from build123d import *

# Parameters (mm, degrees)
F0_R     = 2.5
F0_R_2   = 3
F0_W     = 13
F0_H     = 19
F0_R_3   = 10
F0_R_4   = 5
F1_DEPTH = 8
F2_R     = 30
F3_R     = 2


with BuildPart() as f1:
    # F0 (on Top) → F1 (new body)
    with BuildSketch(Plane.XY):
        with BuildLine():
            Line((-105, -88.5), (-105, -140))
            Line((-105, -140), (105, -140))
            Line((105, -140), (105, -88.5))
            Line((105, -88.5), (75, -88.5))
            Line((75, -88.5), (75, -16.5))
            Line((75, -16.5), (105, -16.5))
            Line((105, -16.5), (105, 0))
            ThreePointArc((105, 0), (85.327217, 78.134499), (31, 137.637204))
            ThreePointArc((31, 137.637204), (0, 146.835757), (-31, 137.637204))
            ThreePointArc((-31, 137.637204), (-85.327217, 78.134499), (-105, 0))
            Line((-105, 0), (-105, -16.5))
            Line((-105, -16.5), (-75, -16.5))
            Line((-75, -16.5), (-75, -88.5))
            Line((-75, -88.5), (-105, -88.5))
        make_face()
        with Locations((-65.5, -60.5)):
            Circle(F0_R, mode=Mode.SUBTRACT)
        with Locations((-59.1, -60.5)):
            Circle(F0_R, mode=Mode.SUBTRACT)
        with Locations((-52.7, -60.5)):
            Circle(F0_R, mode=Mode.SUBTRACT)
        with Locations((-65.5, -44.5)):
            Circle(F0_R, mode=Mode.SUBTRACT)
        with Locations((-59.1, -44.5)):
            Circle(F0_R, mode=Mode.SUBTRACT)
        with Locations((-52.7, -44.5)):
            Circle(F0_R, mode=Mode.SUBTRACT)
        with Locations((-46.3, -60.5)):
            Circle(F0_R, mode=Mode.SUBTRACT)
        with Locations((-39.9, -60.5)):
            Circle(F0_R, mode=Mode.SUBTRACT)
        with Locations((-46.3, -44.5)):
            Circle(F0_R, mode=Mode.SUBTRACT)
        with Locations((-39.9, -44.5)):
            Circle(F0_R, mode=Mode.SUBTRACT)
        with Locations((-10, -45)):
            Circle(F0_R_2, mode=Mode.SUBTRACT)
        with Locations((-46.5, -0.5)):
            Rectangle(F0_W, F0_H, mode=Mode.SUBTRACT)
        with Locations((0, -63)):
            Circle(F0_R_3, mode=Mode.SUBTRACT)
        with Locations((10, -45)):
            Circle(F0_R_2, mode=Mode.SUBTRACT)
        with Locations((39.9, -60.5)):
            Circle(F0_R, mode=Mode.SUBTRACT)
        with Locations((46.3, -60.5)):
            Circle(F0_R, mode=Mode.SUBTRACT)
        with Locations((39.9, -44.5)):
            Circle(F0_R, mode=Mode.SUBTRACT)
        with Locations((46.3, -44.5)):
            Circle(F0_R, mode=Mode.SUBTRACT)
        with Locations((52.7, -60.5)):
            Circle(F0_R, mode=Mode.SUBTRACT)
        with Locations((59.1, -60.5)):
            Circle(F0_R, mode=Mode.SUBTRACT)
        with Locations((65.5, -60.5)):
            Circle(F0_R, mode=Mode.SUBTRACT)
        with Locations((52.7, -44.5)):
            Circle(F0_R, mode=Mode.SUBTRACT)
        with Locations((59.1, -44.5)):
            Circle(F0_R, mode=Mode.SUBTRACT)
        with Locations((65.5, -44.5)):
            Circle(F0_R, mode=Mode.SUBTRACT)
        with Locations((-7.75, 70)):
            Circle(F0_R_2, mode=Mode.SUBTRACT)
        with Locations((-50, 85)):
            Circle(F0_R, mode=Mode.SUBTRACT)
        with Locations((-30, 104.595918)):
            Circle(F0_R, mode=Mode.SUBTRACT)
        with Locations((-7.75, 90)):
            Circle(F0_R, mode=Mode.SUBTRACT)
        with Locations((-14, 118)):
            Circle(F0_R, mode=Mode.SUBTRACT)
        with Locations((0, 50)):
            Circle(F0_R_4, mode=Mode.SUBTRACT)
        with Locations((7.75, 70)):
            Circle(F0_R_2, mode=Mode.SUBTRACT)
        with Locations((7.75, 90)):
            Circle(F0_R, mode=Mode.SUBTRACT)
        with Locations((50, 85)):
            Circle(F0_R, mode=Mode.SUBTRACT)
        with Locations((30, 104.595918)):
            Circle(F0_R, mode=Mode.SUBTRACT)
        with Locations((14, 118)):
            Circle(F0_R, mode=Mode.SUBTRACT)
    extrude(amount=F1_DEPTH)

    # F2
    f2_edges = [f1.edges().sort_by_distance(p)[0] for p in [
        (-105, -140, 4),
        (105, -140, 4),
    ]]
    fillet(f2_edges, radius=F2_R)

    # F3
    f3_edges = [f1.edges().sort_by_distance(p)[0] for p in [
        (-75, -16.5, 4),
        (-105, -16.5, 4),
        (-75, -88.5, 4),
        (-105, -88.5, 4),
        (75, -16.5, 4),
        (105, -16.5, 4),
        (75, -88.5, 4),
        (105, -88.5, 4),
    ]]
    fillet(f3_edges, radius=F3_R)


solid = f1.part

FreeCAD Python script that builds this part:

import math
import FreeCAD as App
import Part
import Sketcher


def edges_at(feature, points):
    """Names of the edges that pass closest to the given points."""
    edges = feature.Shape.Edges
    near = lambda p: min(range(len(edges)), key=lambda i: edges[i].distToShape(Part.Vertex(*p))[0])
    return sorted({f"Edge{near(p) + 1}" for p in points})


def add_polygon(sketch, points):
    """Adds a closed chain of lines whose ends are joined by coincident constraints."""
    first, n = sketch.GeometryCount, len(points)
    for a, b in zip(points, points[1:] + points[:1]):
        sketch.addGeometry(Part.LineSegment(App.Vector(*a, 0), App.Vector(*b, 0)), False)
    for i in range(n):
        sketch.addConstraint(Sketcher.Constraint("Coincident", first + i, 2, first + (i + 1) % n, 1))

doc = App.newDocument("Part")
body = doc.addObject("PartDesign::Body", "Body")

# Sketch on XY plane
sketch1 = doc.addObject("Sketcher::SketchObject", "Sketch")
body.addObject(sketch1)
sketch1.AttachmentSupport = (doc.XY_Plane, [""])
sketch1.MapMode = "FlatFace"
sketch1.addGeometry(Part.LineSegment(App.Vector(-105, -88.5, 0), App.Vector(-105, -140, 0)), False)  # 0
sketch1.addGeometry(Part.LineSegment(App.Vector(-105, -140, 0), App.Vector(105, -140, 0)), False)  # 1
sketch1.addGeometry(Part.LineSegment(App.Vector(105, -140, 0), App.Vector(105, -88.5, 0)), False)  # 2
sketch1.addGeometry(Part.LineSegment(App.Vector(105, -88.5, 0), App.Vector(75, -88.5, 0)), False)  # 3
sketch1.addGeometry(Part.LineSegment(App.Vector(75, -88.5, 0), App.Vector(75, -16.5, 0)), False)  # 4
sketch1.addGeometry(Part.LineSegment(App.Vector(75, -16.5, 0), App.Vector(105, -16.5, 0)), False)  # 5
sketch1.addGeometry(Part.LineSegment(App.Vector(105, -16.5, 0), App.Vector(105, 0, 0)), False)  # 6
sketch1.addGeometry(Part.ArcOfCircle(Part.Circle(App.Vector(-60, 0, 0), App.Vector(0, 0, 1), 165), math.radians(0), math.radians(57)), False)  # 7
sketch1.addGeometry(Part.ArcOfCircle(Part.Circle(App.Vector(0, 90, 0), App.Vector(0, 0, 1), 56.8), math.radians(57), math.radians(123)), False)  # 8
sketch1.addGeometry(Part.ArcOfCircle(Part.Circle(App.Vector(60, 0, 0), App.Vector(0, 0, 1), 165), math.radians(123), math.radians(180)), False)  # 9
sketch1.addGeometry(Part.LineSegment(App.Vector(-105, 0, 0), App.Vector(-105, -16.5, 0)), False)  # 10
sketch1.addGeometry(Part.LineSegment(App.Vector(-105, -16.5, 0), App.Vector(-75, -16.5, 0)), False)  # 11
sketch1.addGeometry(Part.LineSegment(App.Vector(-75, -16.5, 0), App.Vector(-75, -88.5, 0)), False)  # 12
sketch1.addGeometry(Part.LineSegment(App.Vector(-75, -88.5, 0), App.Vector(-105, -88.5, 0)), False)  # 13
sketch1.addGeometry(Part.Circle(App.Vector(-65.5, -60.5, 0), App.Vector(0, 0, 1), 2.5), False)  # 14
sketch1.addGeometry(Part.Circle(App.Vector(-59.1, -60.5, 0), App.Vector(0, 0, 1), 2.5), False)  # 15
sketch1.addGeometry(Part.Circle(App.Vector(-52.7, -60.5, 0), App.Vector(0, 0, 1), 2.5), False)  # 16
sketch1.addGeometry(Part.Circle(App.Vector(-46.3, -60.5, 0), App.Vector(0, 0, 1), 2.5), False)  # 17
sketch1.addGeometry(Part.Circle(App.Vector(-39.9, -60.5, 0), App.Vector(0, 0, 1), 2.5), False)  # 18
sketch1.addGeometry(Part.Circle(App.Vector(-65.5, -44.5, 0), App.Vector(0, 0, 1), 2.5), False)  # 19
sketch1.addGeometry(Part.Circle(App.Vector(-59.1, -44.5, 0), App.Vector(0, 0, 1), 2.5), False)  # 20
sketch1.addGeometry(Part.Circle(App.Vector(-52.7, -44.5, 0), App.Vector(0, 0, 1), 2.5), False)  # 21
sketch1.addGeometry(Part.Circle(App.Vector(-46.3, -44.5, 0), App.Vector(0, 0, 1), 2.5), False)  # 22
sketch1.addGeometry(Part.Circle(App.Vector(-39.9, -44.5, 0), App.Vector(0, 0, 1), 2.5), False)  # 23
sketch1.addGeometry(Part.Circle(App.Vector(-10, -45, 0), App.Vector(0, 0, 1), 3), False)  # 24
add_polygon(sketch1, [(-40, -10), (-53, -10), (-53, 9), (-40, 9)])  # lines 25-28
sketch1.addGeometry(Part.Circle(App.Vector(0, -63, 0), App.Vector(0, 0, 1), 10), False)  # 29
sketch1.addGeometry(Part.Circle(App.Vector(10, -45, 0), App.Vector(0, 0, 1), 3), False)  # 30
sketch1.addGeometry(Part.Circle(App.Vector(39.9, -60.5, 0), App.Vector(0, 0, 1), 2.5), False)  # 31
sketch1.addGeometry(Part.Circle(App.Vector(46.3, -60.5, 0), App.Vector(0, 0, 1), 2.5), False)  # 32
sketch1.addGeometry(Part.Circle(App.Vector(52.7, -60.5, 0), App.Vector(0, 0, 1), 2.5), False)  # 33
sketch1.addGeometry(Part.Circle(App.Vector(59.1, -60.5, 0), App.Vector(0, 0, 1), 2.5), False)  # 34
sketch1.addGeometry(Part.Circle(App.Vector(65.5, -60.5, 0), App.Vector(0, 0, 1), 2.5), False)  # 35
sketch1.addGeometry(Part.Circle(App.Vector(39.9, -44.5, 0), App.Vector(0, 0, 1), 2.5), False)  # 36
sketch1.addGeometry(Part.Circle(App.Vector(46.3, -44.5, 0), App.Vector(0, 0, 1), 2.5), False)  # 37
sketch1.addGeometry(Part.Circle(App.Vector(52.7, -44.5, 0), App.Vector(0, 0, 1), 2.5), False)  # 38
sketch1.addGeometry(Part.Circle(App.Vector(59.1, -44.5, 0), App.Vector(0, 0, 1), 2.5), False)  # 39
sketch1.addGeometry(Part.Circle(App.Vector(65.5, -44.5, 0), App.Vector(0, 0, 1), 2.5), False)  # 40
sketch1.addGeometry(Part.Circle(App.Vector(-7.8, 70, 0), App.Vector(0, 0, 1), 3), False)  # 41
sketch1.addGeometry(Part.Circle(App.Vector(-50, 85, 0), App.Vector(0, 0, 1), 2.5), False)  # 42
sketch1.addGeometry(Part.Circle(App.Vector(-7.8, 90, 0), App.Vector(0, 0, 1), 2.5), False)  # 43
sketch1.addGeometry(Part.Circle(App.Vector(-30, 104.6, 0), App.Vector(0, 0, 1), 2.5), False)  # 44
sketch1.addGeometry(Part.Circle(App.Vector(-14, 118, 0), App.Vector(0, 0, 1), 2.5), False)  # 45
sketch1.addGeometry(Part.Circle(App.Vector(0, 50, 0), App.Vector(0, 0, 1), 5), False)  # 46
sketch1.addGeometry(Part.Circle(App.Vector(7.8, 70, 0), App.Vector(0, 0, 1), 3), False)  # 47
sketch1.addGeometry(Part.Circle(App.Vector(7.8, 90, 0), App.Vector(0, 0, 1), 2.5), False)  # 48
sketch1.addGeometry(Part.Circle(App.Vector(14, 118, 0), App.Vector(0, 0, 1), 2.5), False)  # 49
sketch1.addGeometry(Part.Circle(App.Vector(30, 104.6, 0), App.Vector(0, 0, 1), 2.5), False)  # 50
sketch1.addGeometry(Part.Circle(App.Vector(50, 85, 0), App.Vector(0, 0, 1), 2.5), False)  # 51
sketch1.addConstraint([
    Sketcher.Constraint("Coincident", 0, 2, 1, 1),
    Sketcher.Constraint("Coincident", 1, 2, 2, 1),
    Sketcher.Constraint("Coincident", 2, 2, 3, 1),
    Sketcher.Constraint("Coincident", 3, 2, 4, 1),
    Sketcher.Constraint("Coincident", 4, 2, 5, 1),
    Sketcher.Constraint("Coincident", 5, 2, 6, 1),
    Sketcher.Constraint("Tangent", 6, 2, 7, 1),
    Sketcher.Constraint("Coincident", 7, 2, 8, 1),
    Sketcher.Constraint("Coincident", 8, 2, 9, 1),
    Sketcher.Constraint("Tangent", 9, 2, 10, 1),
    Sketcher.Constraint("Coincident", 10, 2, 11, 1),
    Sketcher.Constraint("Coincident", 11, 2, 12, 1),
    Sketcher.Constraint("Coincident", 12, 2, 13, 1),
    Sketcher.Constraint("Coincident", 13, 2, 0, 1),
    Sketcher.Constraint("Vertical", 0),
    Sketcher.Constraint("Horizontal", 1),
    Sketcher.Constraint("Vertical", 2),
    Sketcher.Constraint("Horizontal", 3),
    Sketcher.Constraint("Vertical", 4),
    Sketcher.Constraint("Horizontal", 5),
    Sketcher.Constraint("Vertical", 6),
    Sketcher.Constraint("Vertical", 10),
    Sketcher.Constraint("Horizontal", 11),
    Sketcher.Constraint("Vertical", 12),
    Sketcher.Constraint("Horizontal", 13),
    Sketcher.Constraint("Horizontal", 25),
    Sketcher.Constraint("Vertical", 26),
    Sketcher.Constraint("Horizontal", 27),
    Sketcher.Constraint("Vertical", 28),
    Sketcher.Constraint("Equal", 7, 9),
    Sketcher.Constraint("Equal", 14, 15),
    Sketcher.Constraint("Equal", 15, 16),
    Sketcher.Constraint("Equal", 16, 17),
    Sketcher.Constraint("Equal", 17, 18),
    Sketcher.Constraint("Equal", 18, 19),
    Sketcher.Constraint("Equal", 19, 20),
    Sketcher.Constraint("Equal", 20, 21),
    Sketcher.Constraint("Equal", 21, 22),
    Sketcher.Constraint("Equal", 22, 23),
    Sketcher.Constraint("Equal", 24, 30),
    Sketcher.Constraint("Equal", 23, 31),
    Sketcher.Constraint("Equal", 31, 32),
    Sketcher.Constraint("Equal", 32, 33),
    Sketcher.Constraint("Equal", 33, 34),
    Sketcher.Constraint("Equal", 34, 35),
    Sketcher.Constraint("Equal", 35, 36),
    Sketcher.Constraint("Equal", 36, 37),
    Sketcher.Constraint("Equal", 37, 38),
    Sketcher.Constraint("Equal", 38, 39),
    Sketcher.Constraint("Equal", 39, 40),
    Sketcher.Constraint("Equal", 30, 41),
    Sketcher.Constraint("Equal", 40, 42),
    Sketcher.Constraint("Equal", 42, 43),
    Sketcher.Constraint("Equal", 43, 44),
    Sketcher.Constraint("Equal", 44, 45),
    Sketcher.Constraint("Equal", 41, 47),
    Sketcher.Constraint("Equal", 45, 48),
    Sketcher.Constraint("Equal", 48, 49),
    Sketcher.Constraint("Equal", 49, 50),
    Sketcher.Constraint("Equal", 50, 51),
    Sketcher.Constraint("Symmetric", 7, 3, 9, 3, -1, 1),
    Sketcher.Constraint("Symmetric", 24, 3, 30, 3, -2),
    Sketcher.Constraint("Symmetric", 18, 3, 31, 3, -2),
    Sketcher.Constraint("Symmetric", 17, 3, 32, 3, -2),
    Sketcher.Constraint("Symmetric", 16, 3, 33, 3, -2),
    Sketcher.Constraint("Symmetric", 15, 3, 34, 3, -2),
    Sketcher.Constraint("Symmetric", 14, 3, 35, 3, -2),
    Sketcher.Constraint("Symmetric", 23, 3, 36, 3, -2),
    Sketcher.Constraint("Symmetric", 22, 3, 37, 3, -2),
    Sketcher.Constraint("Symmetric", 21, 3, 38, 3, -2),
    Sketcher.Constraint("Symmetric", 20, 3, 39, 3, -2),
    Sketcher.Constraint("Symmetric", 19, 3, 40, 3, -2),
    Sketcher.Constraint("Symmetric", 41, 3, 47, 3, -2),
    Sketcher.Constraint("Symmetric", 43, 3, 48, 3, -2),
    Sketcher.Constraint("Symmetric", 45, 3, 49, 3, -2),
    Sketcher.Constraint("Symmetric", 44, 3, 50, 3, -2),
    Sketcher.Constraint("Symmetric", 42, 3, 51, 3, -2),
    Sketcher.Constraint("Symmetric", 7, 2, 8, 2, -2),
    Sketcher.Constraint("Symmetric", 4, 2, 11, 2, -2),
    Sketcher.Constraint("Symmetric", 2, 2, 13, 2, -2),
    Sketcher.Constraint("PointOnObject", 29, 3, -2),
    Sketcher.Constraint("PointOnObject", 46, 3, -2),
    Sketcher.Constraint("Horizontal", 14, 3, 15, 3),
    Sketcher.Constraint("Horizontal", 15, 3, 16, 3),
    Sketcher.Constraint("Horizontal", 16, 3, 17, 3),
    Sketcher.Constraint("Horizontal", 17, 3, 18, 3),
    Sketcher.Constraint("Horizontal", 19, 3, 20, 3),
    Sketcher.Constraint("Horizontal", 20, 3, 21, 3),
    Sketcher.Constraint("Horizontal", 21, 3, 22, 3),
    Sketcher.Constraint("Horizontal", 22, 3, 23, 3),
    Sketcher.Constraint("Vertical", 14, 3, 19, 3),
    Sketcher.Constraint("Vertical", 15, 3, 20, 3),
    Sketcher.Constraint("Vertical", 16, 3, 21, 3),
    Sketcher.Constraint("Vertical", 17, 3, 22, 3),
    Sketcher.Constraint("Vertical", 18, 3, 23, 3),
    Sketcher.Constraint("Vertical", 41, 3, 43, 3),
    Sketcher.Constraint("Vertical", 2, 2, 5, 2),
    Sketcher.Constraint("Diameter", 14, 5.0),
    Sketcher.Constraint("Diameter", 24, 6.0),
    Sketcher.Constraint("Diameter", 29, 20.0),
    Sketcher.Constraint("Diameter", 46, 10.0),
    Sketcher.Constraint("Radius", 7, 165.000001),
    Sketcher.Constraint("DistanceX", 1, 1, 1, 2, 210.0),
    Sketcher.Constraint("DistanceX", 3, 2, 3, 1, 30.0),
    Sketcher.Constraint("DistanceX", 25, 2, 25, 1, 13.0),
    Sketcher.Constraint("DistanceY", 4, 1, 4, 2, 72.0),
    Sketcher.Constraint("DistanceY", 26, 1, 26, 2, 19.0),
    Sketcher.Constraint("DistanceY", 0, 2, 0, 1, 51.5),
    Sketcher.Constraint("DistanceY", 6, 1, 6, 2, 16.5),
    Sketcher.Constraint("DistanceX", 24, 3, -1, 1, 10.0),
    Sketcher.Constraint("DistanceY", 24, 3, -1, 1, 45.0),
    Sketcher.Constraint("DistanceY", 29, 3, -1, 1, 63.0),
    Sketcher.Constraint("DistanceY", -1, 1, 41, 3, 70.0),
    Sketcher.Constraint("DistanceX", 42, 3, -1, 1, 50.0),
    Sketcher.Constraint("DistanceY", -1, 1, 42, 3, 85.0),
    Sketcher.Constraint("DistanceY", -1, 1, 43, 3, 90.0),
    Sketcher.Constraint("DistanceX", 44, 3, -1, 1, 30.0),
    Sketcher.Constraint("DistanceX", 45, 3, -1, 1, 14.0),
    Sketcher.Constraint("DistanceY", -1, 1, 45, 3, 118.0),
    Sketcher.Constraint("DistanceY", -1, 1, 46, 3, 50.0),
    Sketcher.Constraint("DistanceX", -1, 1, 7, 2, 31.0),
    Sketcher.Constraint("DistanceX", 25, 2, -1, 1, 53.0),
    Sketcher.Constraint("DistanceY", 25, 2, -1, 1, 10.0),
    Sketcher.Constraint("DistanceY", 14, 3, 19, 3, 16.0),
    Sketcher.Constraint("DistanceY", 2, 2, 35, 3, 28.0),
    Sketcher.Constraint("DistanceX", 14, 3, -1, 1, 65.5),
    Sketcher.Constraint("DistanceX", 15, 3, -1, 1, 59.1),
    Sketcher.Constraint("DistanceX", 16, 3, -1, 1, 52.7),
    Sketcher.Constraint("DistanceX", 17, 3, -1, 1, 46.3),
    Sketcher.Constraint("DistanceX", 18, 3, -1, 1, 39.9),
    Sketcher.Constraint("DistanceX", 41, 3, 47, 3, 15.5),
    Sketcher.Constraint("Radius", 8, 56.835753),
    Sketcher.Constraint("DistanceY", 7, 3, 44, 3, 104.595919),
])
pad1 = doc.addObject("PartDesign::Pad", "Pad")
body.addObject(pad1)
pad1.Profile = sketch1
pad1.Length = 8
doc.recompute()

fillet = doc.addObject("PartDesign::Fillet", "Fillet")
body.addObject(fillet)
fillet.Base = (pad1, edges_at(pad1, [(-105, -140, 4), (105, -140, 4)]))
fillet.Radius = 30
doc.recompute()

fillet2 = doc.addObject("PartDesign::Fillet", "Fillet001")
body.addObject(fillet2)
fillet2.Base = (fillet, edges_at(fillet, [
    (-75, -16.5, 4),
    (-105, -16.5, 4),
    (-75, -88.5, 4),
    (-105, -88.5, 4),
    (75, -16.5, 4),
    (105, -16.5, 4),
    (75, -88.5, 4),
    (105, -88.5, 4),
]))
fillet2.Radius = 2

doc.recompute()
